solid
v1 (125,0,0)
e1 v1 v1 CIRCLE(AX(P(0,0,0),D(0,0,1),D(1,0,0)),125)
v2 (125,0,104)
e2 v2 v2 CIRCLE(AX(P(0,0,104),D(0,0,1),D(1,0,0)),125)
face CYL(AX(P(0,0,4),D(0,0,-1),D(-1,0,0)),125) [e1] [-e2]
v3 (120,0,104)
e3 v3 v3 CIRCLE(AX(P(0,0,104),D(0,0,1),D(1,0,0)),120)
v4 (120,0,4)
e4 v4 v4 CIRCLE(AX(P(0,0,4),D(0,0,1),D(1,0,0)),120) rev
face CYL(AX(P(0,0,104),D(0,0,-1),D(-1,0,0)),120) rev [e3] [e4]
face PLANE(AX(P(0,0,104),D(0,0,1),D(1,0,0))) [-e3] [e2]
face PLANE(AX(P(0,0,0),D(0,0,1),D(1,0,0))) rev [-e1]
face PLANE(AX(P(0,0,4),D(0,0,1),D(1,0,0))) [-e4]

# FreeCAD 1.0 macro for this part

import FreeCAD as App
import Part
import Sketcher
Q = App.Units.Quantity

doc = App.newDocument("Part")
body = doc.addObject("PartDesign::Body", "Body")

sketch1 = body.newObject("Sketcher::SketchObject", "Sketch")
sketch1.AttachmentSupport = (doc.getObject("XY_Plane"), [""])
sketch1.MapMode = "FlatFace"
sketch1.addGeometry(Part.Circle(App.Vector(0, 0, 0), App.Vector(0, 0, 1), 125), False)
sketch1.addConstraint([
    Sketcher.Constraint("Coincident", 0, 3, -1, 1),
    Sketcher.Constraint("Diameter", 0, Q("250 mm")),
])
pad1 = body.newObject("PartDesign::Pad", "Pad")
pad1.Profile = sketch1
pad1.Length = 4

sketch2 = body.newObject("Sketcher::SketchObject", "Sketch001")
sketch2.AttachmentSupport = (doc.getObject("XY_Plane"), [""])
sketch2.MapMode = "FlatFace"
sketch2.AttachmentOffset = App.Placement(App.Vector(0, 0, 4), App.Rotation())
sketch2.addGeometry([
    Part.Circle(App.Vector(0, 0, 0), App.Vector(0, 0, 1), 125),
    Part.Circle(App.Vector(0, 0, 0), App.Vector(0, 0, 1), 120),
], False)
sketch2.addConstraint([
    Sketcher.Constraint("Coincident", 0, 3, -1, 1),
    Sketcher.Constraint("Coincident", 1, 3, -1, 1),
    Sketcher.Constraint("Diameter", 0, Q("250 mm")),
    Sketcher.Constraint("Diameter", 1, Q("240 mm")),
])
pad2 = body.newObject("PartDesign::Pad", "Pad001")
pad2.Profile = sketch2
pad2.Length = 100

doc.recompute()
